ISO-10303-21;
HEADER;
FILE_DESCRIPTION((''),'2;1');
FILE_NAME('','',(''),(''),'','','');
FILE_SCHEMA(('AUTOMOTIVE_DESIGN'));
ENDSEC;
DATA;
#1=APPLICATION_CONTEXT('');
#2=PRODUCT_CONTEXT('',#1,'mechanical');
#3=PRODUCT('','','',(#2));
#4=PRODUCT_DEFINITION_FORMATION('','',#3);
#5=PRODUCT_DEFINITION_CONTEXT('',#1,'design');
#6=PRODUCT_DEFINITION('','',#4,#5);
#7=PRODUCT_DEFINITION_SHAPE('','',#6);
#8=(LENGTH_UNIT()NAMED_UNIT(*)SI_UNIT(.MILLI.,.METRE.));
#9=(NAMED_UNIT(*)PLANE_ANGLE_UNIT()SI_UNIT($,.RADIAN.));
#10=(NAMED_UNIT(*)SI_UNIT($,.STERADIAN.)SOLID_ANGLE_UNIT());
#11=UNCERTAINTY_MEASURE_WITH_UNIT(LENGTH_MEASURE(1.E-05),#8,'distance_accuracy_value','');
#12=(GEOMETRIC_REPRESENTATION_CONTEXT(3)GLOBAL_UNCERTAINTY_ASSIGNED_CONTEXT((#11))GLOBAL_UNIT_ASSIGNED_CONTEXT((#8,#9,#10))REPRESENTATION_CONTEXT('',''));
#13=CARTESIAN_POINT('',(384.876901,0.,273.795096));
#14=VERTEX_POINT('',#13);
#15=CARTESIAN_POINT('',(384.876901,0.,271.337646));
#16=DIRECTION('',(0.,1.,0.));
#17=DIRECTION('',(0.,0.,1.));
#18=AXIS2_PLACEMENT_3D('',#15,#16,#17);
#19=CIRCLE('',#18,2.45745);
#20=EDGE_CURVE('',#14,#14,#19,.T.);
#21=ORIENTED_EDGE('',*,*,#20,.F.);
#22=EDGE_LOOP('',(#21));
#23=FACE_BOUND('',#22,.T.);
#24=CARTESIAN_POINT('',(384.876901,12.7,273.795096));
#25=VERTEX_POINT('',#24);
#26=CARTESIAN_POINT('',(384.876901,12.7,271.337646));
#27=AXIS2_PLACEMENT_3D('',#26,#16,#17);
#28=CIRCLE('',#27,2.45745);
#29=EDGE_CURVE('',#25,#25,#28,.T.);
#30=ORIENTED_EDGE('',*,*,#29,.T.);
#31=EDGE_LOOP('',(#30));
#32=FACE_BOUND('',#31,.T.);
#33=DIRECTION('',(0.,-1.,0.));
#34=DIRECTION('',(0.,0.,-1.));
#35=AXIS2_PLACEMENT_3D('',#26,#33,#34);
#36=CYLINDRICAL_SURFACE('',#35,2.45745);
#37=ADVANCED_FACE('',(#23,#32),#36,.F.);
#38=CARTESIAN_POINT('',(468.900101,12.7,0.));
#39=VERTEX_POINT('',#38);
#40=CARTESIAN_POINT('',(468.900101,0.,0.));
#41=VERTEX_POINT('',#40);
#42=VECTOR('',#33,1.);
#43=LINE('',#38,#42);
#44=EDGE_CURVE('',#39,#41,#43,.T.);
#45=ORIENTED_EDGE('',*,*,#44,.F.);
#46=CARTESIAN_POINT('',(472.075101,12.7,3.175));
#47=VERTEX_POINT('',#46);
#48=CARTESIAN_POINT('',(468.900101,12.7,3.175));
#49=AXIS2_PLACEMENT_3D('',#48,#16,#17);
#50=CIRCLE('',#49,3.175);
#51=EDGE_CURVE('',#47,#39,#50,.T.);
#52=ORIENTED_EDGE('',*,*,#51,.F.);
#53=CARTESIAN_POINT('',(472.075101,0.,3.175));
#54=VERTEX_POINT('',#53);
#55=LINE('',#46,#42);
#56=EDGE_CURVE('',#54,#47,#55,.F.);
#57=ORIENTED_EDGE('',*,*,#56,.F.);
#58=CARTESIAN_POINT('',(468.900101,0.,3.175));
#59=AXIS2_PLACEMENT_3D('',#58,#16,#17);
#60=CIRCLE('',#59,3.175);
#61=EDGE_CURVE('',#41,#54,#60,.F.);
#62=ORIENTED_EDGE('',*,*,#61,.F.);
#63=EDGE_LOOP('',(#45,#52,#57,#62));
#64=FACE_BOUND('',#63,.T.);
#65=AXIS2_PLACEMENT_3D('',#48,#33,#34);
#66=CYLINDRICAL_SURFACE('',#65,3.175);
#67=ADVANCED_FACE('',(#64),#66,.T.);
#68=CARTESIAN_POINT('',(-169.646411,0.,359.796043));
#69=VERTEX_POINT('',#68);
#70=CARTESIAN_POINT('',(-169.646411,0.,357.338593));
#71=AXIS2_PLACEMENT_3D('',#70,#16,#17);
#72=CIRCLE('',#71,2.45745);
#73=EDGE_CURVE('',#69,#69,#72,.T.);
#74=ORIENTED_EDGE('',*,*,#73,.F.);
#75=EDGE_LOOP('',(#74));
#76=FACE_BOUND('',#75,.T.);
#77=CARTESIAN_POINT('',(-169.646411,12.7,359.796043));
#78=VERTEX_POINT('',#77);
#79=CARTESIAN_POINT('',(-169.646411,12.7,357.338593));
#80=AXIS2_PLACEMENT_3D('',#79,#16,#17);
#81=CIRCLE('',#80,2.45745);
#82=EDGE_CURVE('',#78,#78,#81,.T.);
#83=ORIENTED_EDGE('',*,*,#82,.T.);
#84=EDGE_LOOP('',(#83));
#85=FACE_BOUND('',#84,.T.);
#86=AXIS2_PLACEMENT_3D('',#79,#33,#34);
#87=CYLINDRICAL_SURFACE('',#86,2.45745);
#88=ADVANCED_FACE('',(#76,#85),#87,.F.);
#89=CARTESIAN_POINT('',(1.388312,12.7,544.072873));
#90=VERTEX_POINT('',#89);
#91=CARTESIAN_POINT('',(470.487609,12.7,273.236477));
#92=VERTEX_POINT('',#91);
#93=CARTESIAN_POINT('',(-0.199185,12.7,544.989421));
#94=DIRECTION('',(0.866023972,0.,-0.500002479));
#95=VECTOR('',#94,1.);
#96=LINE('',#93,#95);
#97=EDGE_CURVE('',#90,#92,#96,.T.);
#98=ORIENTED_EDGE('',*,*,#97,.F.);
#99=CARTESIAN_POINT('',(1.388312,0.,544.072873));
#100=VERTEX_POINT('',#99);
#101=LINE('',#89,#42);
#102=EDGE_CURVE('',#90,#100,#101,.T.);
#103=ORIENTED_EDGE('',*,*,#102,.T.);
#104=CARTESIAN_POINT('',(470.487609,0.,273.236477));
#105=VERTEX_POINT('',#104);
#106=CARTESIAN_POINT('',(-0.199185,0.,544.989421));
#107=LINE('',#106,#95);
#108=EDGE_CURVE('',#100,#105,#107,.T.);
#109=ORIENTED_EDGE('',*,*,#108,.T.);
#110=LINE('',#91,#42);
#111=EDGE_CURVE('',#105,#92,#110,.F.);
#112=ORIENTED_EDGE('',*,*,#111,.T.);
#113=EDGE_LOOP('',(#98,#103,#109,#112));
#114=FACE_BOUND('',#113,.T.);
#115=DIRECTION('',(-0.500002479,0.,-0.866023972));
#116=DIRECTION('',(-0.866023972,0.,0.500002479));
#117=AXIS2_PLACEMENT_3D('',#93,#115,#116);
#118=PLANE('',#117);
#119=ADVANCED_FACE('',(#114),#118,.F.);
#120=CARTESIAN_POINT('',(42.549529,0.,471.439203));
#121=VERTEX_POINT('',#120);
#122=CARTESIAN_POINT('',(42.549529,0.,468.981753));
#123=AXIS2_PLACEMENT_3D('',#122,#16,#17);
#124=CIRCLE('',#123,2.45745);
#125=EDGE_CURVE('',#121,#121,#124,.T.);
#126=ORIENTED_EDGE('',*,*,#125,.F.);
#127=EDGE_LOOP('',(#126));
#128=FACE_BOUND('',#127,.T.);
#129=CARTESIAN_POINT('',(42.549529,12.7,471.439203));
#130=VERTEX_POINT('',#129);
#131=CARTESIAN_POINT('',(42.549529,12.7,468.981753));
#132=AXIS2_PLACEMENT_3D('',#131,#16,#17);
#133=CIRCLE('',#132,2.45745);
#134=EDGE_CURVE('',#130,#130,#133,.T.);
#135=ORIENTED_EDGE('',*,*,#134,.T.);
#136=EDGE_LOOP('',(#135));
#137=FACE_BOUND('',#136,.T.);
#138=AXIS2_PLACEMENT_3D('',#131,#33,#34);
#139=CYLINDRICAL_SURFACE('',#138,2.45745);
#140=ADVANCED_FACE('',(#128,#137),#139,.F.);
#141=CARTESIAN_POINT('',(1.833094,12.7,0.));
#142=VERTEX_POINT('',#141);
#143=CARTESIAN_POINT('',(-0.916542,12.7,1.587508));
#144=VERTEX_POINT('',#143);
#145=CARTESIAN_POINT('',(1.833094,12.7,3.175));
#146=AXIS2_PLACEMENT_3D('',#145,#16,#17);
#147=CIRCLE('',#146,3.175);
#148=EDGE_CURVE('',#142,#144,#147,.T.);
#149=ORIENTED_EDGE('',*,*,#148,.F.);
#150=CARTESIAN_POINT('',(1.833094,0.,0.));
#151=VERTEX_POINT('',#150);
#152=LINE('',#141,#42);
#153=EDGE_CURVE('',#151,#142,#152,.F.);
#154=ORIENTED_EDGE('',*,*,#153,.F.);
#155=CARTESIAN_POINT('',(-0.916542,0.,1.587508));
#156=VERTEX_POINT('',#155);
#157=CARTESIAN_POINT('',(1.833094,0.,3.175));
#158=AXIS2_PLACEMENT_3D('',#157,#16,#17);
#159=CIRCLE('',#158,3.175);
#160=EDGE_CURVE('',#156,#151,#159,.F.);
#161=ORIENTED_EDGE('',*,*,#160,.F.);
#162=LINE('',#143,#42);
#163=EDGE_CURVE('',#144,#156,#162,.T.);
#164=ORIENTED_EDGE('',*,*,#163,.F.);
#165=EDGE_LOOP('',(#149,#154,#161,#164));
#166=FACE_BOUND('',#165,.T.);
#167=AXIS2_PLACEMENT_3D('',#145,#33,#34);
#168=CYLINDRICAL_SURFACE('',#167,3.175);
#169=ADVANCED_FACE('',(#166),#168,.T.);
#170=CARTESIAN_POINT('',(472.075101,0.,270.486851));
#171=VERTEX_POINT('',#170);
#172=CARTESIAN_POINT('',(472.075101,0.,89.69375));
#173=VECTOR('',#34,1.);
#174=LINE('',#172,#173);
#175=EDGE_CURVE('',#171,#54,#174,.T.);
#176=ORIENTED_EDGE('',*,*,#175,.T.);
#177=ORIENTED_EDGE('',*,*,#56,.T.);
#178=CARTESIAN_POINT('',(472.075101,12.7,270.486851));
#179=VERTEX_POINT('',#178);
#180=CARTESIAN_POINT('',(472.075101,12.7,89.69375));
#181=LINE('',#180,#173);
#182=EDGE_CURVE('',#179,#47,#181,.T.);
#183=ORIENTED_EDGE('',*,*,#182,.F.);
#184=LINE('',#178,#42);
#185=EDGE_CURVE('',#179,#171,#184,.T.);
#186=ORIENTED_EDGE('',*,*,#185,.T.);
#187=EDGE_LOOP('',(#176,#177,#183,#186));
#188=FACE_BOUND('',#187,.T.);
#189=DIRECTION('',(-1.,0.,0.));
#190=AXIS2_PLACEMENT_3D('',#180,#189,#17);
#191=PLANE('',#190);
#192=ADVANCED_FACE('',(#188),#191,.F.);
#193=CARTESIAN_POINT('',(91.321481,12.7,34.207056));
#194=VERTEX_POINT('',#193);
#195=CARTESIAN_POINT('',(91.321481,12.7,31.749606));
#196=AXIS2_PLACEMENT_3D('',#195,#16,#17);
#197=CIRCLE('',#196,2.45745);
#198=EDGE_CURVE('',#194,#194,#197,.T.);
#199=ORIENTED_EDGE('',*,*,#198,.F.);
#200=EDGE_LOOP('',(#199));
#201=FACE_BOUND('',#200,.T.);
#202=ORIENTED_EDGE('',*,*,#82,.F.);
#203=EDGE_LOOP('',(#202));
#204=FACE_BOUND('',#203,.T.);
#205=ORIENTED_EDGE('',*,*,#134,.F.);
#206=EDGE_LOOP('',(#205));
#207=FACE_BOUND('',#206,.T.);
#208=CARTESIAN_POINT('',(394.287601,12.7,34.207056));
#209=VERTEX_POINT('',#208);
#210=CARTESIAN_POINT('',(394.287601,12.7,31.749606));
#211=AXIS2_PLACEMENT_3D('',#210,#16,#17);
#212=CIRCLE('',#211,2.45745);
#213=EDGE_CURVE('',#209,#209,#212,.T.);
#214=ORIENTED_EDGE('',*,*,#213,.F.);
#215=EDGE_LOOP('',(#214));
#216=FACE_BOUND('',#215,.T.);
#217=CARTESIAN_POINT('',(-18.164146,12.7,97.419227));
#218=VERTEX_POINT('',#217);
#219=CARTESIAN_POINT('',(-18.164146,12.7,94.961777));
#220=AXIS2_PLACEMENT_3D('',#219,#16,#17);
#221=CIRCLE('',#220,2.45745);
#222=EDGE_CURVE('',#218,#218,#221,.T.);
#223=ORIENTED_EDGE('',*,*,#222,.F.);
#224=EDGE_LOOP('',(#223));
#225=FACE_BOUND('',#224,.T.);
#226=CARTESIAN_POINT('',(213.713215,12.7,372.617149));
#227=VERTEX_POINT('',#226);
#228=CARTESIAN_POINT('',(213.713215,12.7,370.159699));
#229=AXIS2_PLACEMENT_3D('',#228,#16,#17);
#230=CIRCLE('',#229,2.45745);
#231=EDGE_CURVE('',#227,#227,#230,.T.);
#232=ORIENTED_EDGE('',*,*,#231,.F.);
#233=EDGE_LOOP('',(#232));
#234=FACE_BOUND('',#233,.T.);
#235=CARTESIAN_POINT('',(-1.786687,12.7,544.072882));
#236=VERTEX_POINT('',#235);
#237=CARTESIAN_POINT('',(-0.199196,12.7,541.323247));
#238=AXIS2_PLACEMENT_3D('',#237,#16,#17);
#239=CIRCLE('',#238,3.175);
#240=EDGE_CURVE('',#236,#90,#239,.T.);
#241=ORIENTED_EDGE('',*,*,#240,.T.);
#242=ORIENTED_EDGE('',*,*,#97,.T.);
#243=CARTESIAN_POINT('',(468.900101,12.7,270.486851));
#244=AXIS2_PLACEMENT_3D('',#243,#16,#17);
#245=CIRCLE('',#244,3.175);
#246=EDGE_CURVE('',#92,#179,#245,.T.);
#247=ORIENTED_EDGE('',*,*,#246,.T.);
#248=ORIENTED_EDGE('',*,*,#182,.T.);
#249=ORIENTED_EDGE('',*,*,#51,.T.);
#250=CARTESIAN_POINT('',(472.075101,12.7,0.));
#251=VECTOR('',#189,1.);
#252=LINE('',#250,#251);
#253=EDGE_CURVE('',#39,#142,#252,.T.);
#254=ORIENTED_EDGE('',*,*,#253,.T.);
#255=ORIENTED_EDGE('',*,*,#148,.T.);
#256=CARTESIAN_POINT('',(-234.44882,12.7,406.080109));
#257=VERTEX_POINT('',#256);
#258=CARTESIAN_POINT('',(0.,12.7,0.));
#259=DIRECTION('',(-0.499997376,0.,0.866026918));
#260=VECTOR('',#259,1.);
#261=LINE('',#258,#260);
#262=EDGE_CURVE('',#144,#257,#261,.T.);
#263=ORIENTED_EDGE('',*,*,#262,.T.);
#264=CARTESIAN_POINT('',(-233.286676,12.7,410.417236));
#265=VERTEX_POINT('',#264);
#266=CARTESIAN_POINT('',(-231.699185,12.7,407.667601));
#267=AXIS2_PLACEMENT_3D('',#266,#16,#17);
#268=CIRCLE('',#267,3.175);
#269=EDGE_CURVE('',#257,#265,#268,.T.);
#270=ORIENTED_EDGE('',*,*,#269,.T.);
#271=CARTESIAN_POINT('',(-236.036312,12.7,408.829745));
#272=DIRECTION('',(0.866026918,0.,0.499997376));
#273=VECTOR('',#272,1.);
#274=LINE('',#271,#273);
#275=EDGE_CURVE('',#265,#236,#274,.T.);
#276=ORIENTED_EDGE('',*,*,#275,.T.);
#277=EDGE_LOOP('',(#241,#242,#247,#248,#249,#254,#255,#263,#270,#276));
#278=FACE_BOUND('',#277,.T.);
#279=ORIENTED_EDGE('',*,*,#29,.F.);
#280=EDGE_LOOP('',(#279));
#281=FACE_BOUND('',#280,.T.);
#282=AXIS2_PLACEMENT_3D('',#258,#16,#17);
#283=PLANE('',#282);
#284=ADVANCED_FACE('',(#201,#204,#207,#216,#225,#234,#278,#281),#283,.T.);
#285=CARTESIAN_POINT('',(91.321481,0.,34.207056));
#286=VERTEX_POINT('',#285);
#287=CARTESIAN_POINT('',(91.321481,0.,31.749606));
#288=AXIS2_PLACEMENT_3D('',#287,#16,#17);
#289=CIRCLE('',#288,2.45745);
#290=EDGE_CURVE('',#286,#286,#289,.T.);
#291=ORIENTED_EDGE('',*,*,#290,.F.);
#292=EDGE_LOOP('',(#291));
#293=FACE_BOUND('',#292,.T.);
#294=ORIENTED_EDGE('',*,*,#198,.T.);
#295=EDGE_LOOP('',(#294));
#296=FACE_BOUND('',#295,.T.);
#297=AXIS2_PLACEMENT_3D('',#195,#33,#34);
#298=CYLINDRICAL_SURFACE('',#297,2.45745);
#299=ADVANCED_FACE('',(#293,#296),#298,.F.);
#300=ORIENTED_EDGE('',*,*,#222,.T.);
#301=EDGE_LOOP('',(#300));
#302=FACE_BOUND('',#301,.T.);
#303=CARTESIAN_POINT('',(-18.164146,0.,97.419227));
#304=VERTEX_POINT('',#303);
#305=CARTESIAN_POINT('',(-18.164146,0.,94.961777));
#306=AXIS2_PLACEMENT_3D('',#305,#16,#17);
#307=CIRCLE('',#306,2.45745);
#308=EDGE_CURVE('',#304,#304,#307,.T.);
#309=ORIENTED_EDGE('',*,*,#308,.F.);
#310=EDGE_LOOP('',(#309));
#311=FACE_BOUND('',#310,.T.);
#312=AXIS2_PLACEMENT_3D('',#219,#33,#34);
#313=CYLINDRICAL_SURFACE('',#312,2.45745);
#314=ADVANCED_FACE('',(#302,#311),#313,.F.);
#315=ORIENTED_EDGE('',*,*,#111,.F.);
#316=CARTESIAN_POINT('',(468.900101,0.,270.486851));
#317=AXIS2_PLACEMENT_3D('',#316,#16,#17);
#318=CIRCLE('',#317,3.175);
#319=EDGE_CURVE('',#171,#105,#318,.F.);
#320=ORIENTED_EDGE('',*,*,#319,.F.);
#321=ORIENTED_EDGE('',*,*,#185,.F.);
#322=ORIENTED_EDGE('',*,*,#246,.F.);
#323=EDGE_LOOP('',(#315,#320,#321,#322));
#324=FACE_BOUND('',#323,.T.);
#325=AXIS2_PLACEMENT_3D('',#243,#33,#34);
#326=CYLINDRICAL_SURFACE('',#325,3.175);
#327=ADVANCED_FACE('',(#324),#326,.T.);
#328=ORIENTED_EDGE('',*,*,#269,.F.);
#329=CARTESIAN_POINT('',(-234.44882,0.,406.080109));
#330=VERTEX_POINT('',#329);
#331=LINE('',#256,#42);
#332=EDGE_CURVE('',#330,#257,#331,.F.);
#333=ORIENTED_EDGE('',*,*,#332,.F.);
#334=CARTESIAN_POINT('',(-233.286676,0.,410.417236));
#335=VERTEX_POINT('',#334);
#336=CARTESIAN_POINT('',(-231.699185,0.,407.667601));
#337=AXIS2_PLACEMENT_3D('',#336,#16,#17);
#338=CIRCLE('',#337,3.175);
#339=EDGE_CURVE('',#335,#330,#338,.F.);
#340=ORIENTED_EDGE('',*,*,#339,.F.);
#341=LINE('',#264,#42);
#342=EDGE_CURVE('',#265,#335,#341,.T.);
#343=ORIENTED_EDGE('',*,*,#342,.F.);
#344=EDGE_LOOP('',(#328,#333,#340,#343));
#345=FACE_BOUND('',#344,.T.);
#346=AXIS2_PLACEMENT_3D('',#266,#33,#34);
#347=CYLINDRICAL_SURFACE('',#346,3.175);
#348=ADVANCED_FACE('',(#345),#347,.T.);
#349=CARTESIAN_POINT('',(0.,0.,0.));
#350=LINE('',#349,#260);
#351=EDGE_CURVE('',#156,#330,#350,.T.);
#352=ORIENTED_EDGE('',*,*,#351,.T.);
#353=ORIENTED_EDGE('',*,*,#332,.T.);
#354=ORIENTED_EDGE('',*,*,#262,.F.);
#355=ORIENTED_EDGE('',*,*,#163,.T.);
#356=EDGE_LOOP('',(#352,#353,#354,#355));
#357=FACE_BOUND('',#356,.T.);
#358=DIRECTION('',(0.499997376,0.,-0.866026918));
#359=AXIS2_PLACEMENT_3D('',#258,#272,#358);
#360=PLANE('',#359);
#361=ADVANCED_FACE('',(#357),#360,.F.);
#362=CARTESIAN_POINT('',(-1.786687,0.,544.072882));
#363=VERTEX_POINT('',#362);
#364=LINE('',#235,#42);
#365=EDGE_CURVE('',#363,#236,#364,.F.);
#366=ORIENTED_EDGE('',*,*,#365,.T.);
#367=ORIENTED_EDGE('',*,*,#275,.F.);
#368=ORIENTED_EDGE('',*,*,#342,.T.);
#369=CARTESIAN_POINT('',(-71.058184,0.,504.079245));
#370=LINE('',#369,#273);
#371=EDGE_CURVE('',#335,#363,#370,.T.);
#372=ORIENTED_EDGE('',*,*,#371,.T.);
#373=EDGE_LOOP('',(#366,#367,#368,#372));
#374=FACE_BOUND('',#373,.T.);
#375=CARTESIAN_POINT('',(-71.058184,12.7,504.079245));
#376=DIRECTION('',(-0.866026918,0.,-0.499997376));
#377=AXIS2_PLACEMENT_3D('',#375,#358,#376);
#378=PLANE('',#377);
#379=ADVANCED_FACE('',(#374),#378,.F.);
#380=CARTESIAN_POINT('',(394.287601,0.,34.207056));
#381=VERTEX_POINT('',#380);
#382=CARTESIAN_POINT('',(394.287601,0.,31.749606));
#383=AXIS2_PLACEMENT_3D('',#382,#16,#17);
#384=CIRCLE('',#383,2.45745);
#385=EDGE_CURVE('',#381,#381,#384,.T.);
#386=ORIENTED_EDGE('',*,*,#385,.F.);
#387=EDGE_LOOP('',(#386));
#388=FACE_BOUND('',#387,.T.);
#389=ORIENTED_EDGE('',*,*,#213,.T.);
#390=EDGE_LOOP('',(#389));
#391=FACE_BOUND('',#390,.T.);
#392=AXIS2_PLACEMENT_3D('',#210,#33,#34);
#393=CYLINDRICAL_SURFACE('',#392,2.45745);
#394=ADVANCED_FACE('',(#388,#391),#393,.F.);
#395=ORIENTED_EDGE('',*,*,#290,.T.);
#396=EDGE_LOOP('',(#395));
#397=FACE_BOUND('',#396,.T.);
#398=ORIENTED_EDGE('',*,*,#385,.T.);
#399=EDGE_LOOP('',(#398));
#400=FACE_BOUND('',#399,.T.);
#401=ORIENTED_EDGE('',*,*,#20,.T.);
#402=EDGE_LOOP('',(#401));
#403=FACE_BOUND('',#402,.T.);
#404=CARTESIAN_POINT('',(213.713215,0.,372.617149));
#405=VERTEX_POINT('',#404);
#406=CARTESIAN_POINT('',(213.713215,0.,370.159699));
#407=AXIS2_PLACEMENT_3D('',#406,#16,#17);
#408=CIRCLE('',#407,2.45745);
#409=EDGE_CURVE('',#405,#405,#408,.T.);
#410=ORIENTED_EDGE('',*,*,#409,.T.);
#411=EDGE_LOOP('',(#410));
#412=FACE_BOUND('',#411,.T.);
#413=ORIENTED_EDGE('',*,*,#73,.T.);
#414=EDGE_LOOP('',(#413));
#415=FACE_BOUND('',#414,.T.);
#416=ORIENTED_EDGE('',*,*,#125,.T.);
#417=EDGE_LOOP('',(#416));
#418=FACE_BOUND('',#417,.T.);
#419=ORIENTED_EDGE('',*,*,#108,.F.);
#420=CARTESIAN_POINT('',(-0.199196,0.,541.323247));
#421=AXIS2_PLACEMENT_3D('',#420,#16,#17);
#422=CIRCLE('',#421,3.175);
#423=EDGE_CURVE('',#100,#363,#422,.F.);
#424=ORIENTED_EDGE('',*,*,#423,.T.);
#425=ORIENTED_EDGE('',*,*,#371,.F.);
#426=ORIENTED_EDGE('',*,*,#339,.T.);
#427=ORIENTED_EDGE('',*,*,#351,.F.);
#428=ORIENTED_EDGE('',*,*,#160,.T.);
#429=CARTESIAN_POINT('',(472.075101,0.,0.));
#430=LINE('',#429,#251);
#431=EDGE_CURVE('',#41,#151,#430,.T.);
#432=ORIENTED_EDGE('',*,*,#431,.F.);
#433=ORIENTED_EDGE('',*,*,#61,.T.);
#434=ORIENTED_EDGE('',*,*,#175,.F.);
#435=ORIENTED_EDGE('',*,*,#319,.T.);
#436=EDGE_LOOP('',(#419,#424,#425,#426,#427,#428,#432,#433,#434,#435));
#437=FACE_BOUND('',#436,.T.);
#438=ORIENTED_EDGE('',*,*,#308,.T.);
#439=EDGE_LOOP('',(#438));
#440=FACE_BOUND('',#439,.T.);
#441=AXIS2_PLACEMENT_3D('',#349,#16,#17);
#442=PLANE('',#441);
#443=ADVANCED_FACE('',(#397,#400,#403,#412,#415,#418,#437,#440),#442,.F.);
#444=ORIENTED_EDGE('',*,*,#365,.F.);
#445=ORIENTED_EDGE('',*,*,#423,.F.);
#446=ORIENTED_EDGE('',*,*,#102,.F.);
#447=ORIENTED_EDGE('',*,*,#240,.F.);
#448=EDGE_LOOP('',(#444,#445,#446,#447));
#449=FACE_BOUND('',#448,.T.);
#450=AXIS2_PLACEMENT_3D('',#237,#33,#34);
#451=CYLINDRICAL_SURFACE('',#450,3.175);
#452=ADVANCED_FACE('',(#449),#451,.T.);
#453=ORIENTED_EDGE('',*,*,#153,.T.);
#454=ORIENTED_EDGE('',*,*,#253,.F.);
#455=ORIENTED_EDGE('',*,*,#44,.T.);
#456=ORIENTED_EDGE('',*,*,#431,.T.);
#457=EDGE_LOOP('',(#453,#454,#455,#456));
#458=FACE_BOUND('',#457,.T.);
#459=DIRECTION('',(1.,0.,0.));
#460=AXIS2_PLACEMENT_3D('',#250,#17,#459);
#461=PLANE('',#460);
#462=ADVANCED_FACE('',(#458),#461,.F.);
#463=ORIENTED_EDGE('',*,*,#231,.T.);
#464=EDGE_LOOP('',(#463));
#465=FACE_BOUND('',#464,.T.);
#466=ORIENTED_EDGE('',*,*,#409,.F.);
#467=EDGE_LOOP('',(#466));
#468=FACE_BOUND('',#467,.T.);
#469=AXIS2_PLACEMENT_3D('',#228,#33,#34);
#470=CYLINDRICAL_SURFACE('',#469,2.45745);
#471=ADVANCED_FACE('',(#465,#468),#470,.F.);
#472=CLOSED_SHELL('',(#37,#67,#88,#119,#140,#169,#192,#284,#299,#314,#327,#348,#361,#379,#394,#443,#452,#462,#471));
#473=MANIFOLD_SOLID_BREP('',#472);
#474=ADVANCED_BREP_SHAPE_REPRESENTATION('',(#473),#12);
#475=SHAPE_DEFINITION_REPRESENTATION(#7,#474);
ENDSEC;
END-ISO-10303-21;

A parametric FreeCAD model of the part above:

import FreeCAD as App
import Part
import Sketcher
from FreeCAD import Vector
Q = App.Units.Quantity


def edges_at(feature, points):
    """Names of the edges that pass closest to the given points."""
    edges = feature.Shape.Edges
    near = lambda p: min(range(len(edges)), key=lambda i: edges[i].distToShape(Part.Vertex(*p))[0])
    return sorted({f"Edge{near(p) + 1}" for p in points})

doc = App.newDocument("Part")
body = doc.addObject("PartDesign::Body", "Body")

sketch1 = body.newObject("Sketcher::SketchObject", "Sketch")
sketch1.AttachmentSupport = (doc.getObject("XZ_Plane"), [""])
sketch1.MapMode = "FlatFace"
sketch1.addGeometry([
    Part.LineSegment(Vector(-0.2, 545, 0), Vector(472.1, 272.3, 0)),
    Part.LineSegment(Vector(472.1, 272.3, 0), Vector(472.1, 0, 0)),
    Part.LineSegment(Vector(472.1, 0, 0), Vector(0, 0, 0)),
    Part.LineSegment(Vector(0, 0, 0), Vector(-236, 408.8, 0)),
    Part.LineSegment(Vector(-236, 408.8, 0), Vector(-159, 453.3, 0)),
    Part.LineSegment(Vector(-159, 453.3, 0), Vector(-71.1, 504.1, 0)),
    Part.LineSegment(Vector(-71.1, 504.1, 0), Vector(-0.2, 545, 0)),
    Part.Circle(Vector(42.5, 469, 0), Vector(0, 0, 1), 2.5),
    Part.Circle(Vector(-169.6, 357.3, 0), Vector(0, 0, 1), 2.5),
    Part.Circle(Vector(213.7, 370.2, 0), Vector(0, 0, 1), 2.5),
    Part.Circle(Vector(384.9, 271.3, 0), Vector(0, 0, 1), 2.5),
    Part.Circle(Vector(-18.2, 95, 0), Vector(0, 0, 1), 2.5),
    Part.Circle(Vector(91.3, 31.7, 0), Vector(0, 0, 1), 2.5),
    Part.Circle(Vector(394.3, 31.7, 0), Vector(0, 0, 1), 2.5),
], False)
sketch1.addConstraint([
    Sketcher.Constraint("Coincident", 0, 2, 1, 1),
    Sketcher.Constraint("Coincident", 1, 2, 2, 1),
    Sketcher.Constraint("Coincident", 2, 2, 3, 1),
    Sketcher.Constraint("Coincident", 3, 2, 4, 1),
    Sketcher.Constraint("Coincident", 4, 2, 5, 1),
    Sketcher.Constraint("Coincident", 5, 2, 6, 1),
    Sketcher.Constraint("Coincident", 6, 2, 0, 1),
    Sketcher.Constraint("Vertical", 1),
    Sketcher.Constraint("Horizontal", 2),
    Sketcher.Constraint("Coincident", 2, 2, -1, 1),
    Sketcher.Constraint("Equal", 7, 8),
    Sketcher.Constraint("Equal", 8, 9),
    Sketcher.Constraint("Equal", 9, 10),
    Sketcher.Constraint("Equal", 10, 11),
    Sketcher.Constraint("Equal", 11, 12),
    Sketcher.Constraint("Equal", 12, 13),
    Sketcher.Constraint("Perpendicular", 3, 4),
    Sketcher.Constraint("Parallel", 4, 5),
    Sketcher.Constraint("Parallel", 5, 6),
    Sketcher.Constraint("Horizontal", 12, 3, 13, 3),
    Sketcher.Constraint("Distance", 5, Q("4 in")),
    Sketcher.Constraint("Distance", 4, Q("3.5 in")),
    Sketcher.Constraint("Diameter", 7, Q("0.1935 in")),
    Sketcher.Constraint("DistanceX", 10, 3, 0, 2, Q("3.433 in")),
    Sketcher.Constraint("DistanceX", 13, 3, 0, 2, Q("3.0625 in")),
    Sketcher.Constraint("DistanceX", 2, 2, 2, 1, Q("472.075101 mm")),
    Sketcher.Constraint("DistanceY", 8, 3, 7, 3, Q("4.3954 in")),
    Sketcher.Constraint("DistanceX", 12, 3, 10, 3, Q("11.5573 in")),
    Sketcher.Constraint("DistanceY", 12, 3, 10, 3, Q("9.4326 in")),
    Sketcher.Constraint("Distance", 3, Q("472.075101 mm")),
    Sketcher.Constraint("DistanceY", -1, 1, 9, 3, Q("370.159699 mm")),
    Sketcher.Constraint("DistanceX", 3, 2, 8, 3, Q("66.389901 mm")),
    Sketcher.Constraint("DistanceY", 3, 2, 5, 2, Q("95.2495 mm")),
    Sketcher.Constraint("DistanceX", 5, 2, 9, 3, Q("284.771399 mm")),
    Sketcher.Constraint("DistanceX", 5, 2, 6, 2, Q("70.858999 mm")),
    Sketcher.Constraint("DistanceY", 1, 2, 1, 1, Q("272.319932 mm")),
    Sketcher.Constraint("DistanceX", -1, 1, 7, 3, Q("42.549529 mm")),
    Sketcher.Constraint("DistanceX", 11, 3, 9, 3, Q("231.877361 mm")),
    Sketcher.Constraint("DistanceY", 11, 3, 9, 3, Q("275.197922 mm")),
    Sketcher.Constraint("DistanceY", 11, 3, 10, 3, Q("176.375868 mm")),
    Sketcher.Constraint("DistanceY", 0, 2, 7, 3, Q("196.66182 mm")),
])
pad1 = body.newObject("PartDesign::Pad", "Pad")
pad1.Profile = sketch1
pad1.Length = Q("0.5 in")
pad1.Reversed = True
doc.recompute()

fillet = body.newObject("PartDesign::Fillet", "Fillet")
fillet.Base = (pad1, edges_at(pad1, [
    (472.075, 6.35, 272.32),
    (-0.199, 6.35, 544.989),
    (-236.036, 6.35, 408.83),
    (0, 6.35, 0),
    (472.075, 6.35, 0),
]))
fillet.Radius = Q("0.125 in")

doc.recompute()
